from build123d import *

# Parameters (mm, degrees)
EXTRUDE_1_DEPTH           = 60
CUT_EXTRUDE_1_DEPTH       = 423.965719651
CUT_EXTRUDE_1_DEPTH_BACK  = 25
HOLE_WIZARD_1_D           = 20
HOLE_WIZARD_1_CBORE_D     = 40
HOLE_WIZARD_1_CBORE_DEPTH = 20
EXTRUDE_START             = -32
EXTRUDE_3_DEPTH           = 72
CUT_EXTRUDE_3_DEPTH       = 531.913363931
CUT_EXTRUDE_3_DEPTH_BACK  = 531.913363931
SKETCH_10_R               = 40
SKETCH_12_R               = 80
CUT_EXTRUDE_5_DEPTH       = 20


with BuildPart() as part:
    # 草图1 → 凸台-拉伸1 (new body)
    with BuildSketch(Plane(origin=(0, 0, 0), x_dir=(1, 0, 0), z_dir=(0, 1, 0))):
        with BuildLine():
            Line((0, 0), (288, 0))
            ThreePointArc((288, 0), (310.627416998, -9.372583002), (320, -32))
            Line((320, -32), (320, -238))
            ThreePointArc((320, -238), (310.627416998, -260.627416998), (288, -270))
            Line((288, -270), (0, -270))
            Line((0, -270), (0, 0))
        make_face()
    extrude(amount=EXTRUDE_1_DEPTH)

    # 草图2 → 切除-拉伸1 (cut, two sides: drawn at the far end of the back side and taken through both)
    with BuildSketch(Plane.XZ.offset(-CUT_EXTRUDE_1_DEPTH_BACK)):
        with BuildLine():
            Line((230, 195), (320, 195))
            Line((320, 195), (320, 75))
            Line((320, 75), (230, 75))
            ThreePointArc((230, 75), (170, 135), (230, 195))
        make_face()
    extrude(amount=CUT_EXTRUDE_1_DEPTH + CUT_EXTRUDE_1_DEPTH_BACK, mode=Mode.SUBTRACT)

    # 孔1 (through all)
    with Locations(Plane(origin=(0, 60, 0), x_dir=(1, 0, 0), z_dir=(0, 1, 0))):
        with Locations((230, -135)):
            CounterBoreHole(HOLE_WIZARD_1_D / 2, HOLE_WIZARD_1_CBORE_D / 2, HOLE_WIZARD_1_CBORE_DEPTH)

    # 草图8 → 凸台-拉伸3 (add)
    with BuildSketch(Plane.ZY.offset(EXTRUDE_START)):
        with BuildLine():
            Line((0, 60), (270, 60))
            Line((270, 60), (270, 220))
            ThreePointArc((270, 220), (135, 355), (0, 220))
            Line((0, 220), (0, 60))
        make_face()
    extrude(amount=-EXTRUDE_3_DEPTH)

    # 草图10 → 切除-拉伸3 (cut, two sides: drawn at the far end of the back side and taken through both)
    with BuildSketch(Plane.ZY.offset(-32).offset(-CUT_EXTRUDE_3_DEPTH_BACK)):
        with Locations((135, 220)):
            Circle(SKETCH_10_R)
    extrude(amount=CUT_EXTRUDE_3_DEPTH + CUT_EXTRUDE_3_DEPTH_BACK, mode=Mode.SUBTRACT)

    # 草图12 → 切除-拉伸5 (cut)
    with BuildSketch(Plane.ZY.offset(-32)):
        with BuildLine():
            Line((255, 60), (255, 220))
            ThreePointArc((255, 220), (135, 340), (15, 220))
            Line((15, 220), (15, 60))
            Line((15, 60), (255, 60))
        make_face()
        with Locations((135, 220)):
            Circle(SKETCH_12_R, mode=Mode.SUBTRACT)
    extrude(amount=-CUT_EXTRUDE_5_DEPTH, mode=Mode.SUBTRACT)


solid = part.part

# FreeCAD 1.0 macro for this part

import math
import FreeCAD as App
import Part
import Sketcher

V = App.Vector

doc = App.newDocument("Part")
body = doc.addObject("PartDesign::Body", "Body")

# Sketch on XZ plane
sketch1 = doc.addObject("Sketcher::SketchObject", "Sketch")
body.addObject(sketch1)
sketch1.AttachmentSupport = (doc.XZ_Plane, [""])
sketch1.MapMode = "FlatFace"
sketch1.addGeometry([
    Part.LineSegment(V(288, 0, 0), V(0, 0, 0)),  # 0
    Part.LineSegment(V(0, 0, 0), V(0, 270, 0)),  # 1
    Part.LineSegment(V(0, 270, 0), V(288, 270, 0)),  # 2
    Part.ArcOfCircle(Part.Circle(V(288, 238, 0), V(0, 0, 1), 32), math.radians(0), math.radians(90)),  # 3
    Part.LineSegment(V(320, 238, 0), V(320, 32, 0)),  # 4
    Part.ArcOfCircle(Part.Circle(V(288, 32, 0), V(0, 0, 1), 32), math.radians(-90), math.radians(0)),  # 5
], False)
sketch1.addConstraint([
    Sketcher.Constraint("Coincident", 0, 2, 1, 1),
    Sketcher.Constraint("Coincident", 1, 2, 2, 1),
    Sketcher.Constraint("Tangent", 2, 2, 3, 2),
    Sketcher.Constraint("Tangent", 3, 1, 4, 1),
    Sketcher.Constraint("Tangent", 4, 2, 5, 2),
    Sketcher.Constraint("Tangent", 5, 1, 0, 1),
    Sketcher.Constraint("Horizontal", 0),
    Sketcher.Constraint("Vertical", 1),
    Sketcher.Constraint("Horizontal", 2),
    Sketcher.Constraint("Vertical", 4),
    Sketcher.Constraint("Coincident", 0, 2, -1, 1),
    Sketcher.Constraint("Equal", 3, 5),
    Sketcher.Constraint("Radius", 3, 32.0),
    Sketcher.Constraint("DistanceX", 0, 2, 0, 1, 288.0),
    Sketcher.Constraint("DistanceY", 1, 1, 1, 2, 270.0),
])
pad1 = doc.addObject("PartDesign::Pad", "Pad")
body.addObject(pad1)
pad1.Profile = sketch1
pad1.Length = 60
pad1.Reversed = True

# Sketch on XZ plane
sketch2 = doc.addObject("Sketcher::SketchObject", "Sketch001")
body.addObject(sketch2)
sketch2.AttachmentSupport = (doc.XZ_Plane, [""])
sketch2.MapMode = "FlatFace"
sketch2.addGeometry([
    Part.LineSegment(V(320, 195, 0), V(230, 195, 0)),
    Part.ArcOfCircle(Part.Circle(V(230, 135, 0), V(0, 0, 1), 60), math.radians(90), math.radians(270)),
    Part.LineSegment(V(230, 75, 0), V(320, 75, 0)),
    Part.LineSegment(V(320, 75, 0), V(320, 195, 0)),
], False)
sketch2.addConstraint([
    Sketcher.Constraint("Tangent", 0, 2, 1, 1),
    Sketcher.Constraint("Tangent", 1, 2, 2, 1),
    Sketcher.Constraint("Coincident", 2, 2, 3, 1),
    Sketcher.Constraint("Coincident", 3, 2, 0, 1),
    Sketcher.Constraint("Horizontal", 0),
    Sketcher.Constraint("Horizontal", 2),
    Sketcher.Constraint("Vertical", 3),
    Sketcher.Constraint("Radius", 1, 60.0),
    Sketcher.Constraint("DistanceX", 0, 2, 0, 1, 90.0),
    Sketcher.Constraint("DistanceX", -1, 1, 1, 3, 230.0),
    Sketcher.Constraint("DistanceY", -1, 1, 1, 3, 135.0),
])
pocket1 = doc.addObject("PartDesign::Pocket", "Pocket")
body.addObject(pocket1)
pocket1.Profile = sketch2
pocket1.Type = "TwoLengths"
pocket1.Length = 423.96572
pocket1.Length2 = 25
pocket1.Reversed = True

# Sketch on XZ plane
sketch3 = doc.addObject("Sketcher::SketchObject", "Sketch002")
body.addObject(sketch3)
sketch3.AttachmentSupport = (doc.XZ_Plane, [""])
sketch3.MapMode = "FlatFace"
sketch3.AttachmentOffset = App.Placement(V(0, 0, -60), App.Rotation())
sketch3.addGeometry(Part.Circle(V(230, 135, 0), V(0, 0, 1), 10), False)
sketch3.addConstraint([
    Sketcher.Constraint("Diameter", 0, 20.0),
    Sketcher.Constraint("DistanceX", -1, 1, 0, 3, 230.0),
    Sketcher.Constraint("DistanceY", -1, 1, 0, 3, 135.0),
])
doc.recompute()
hole = doc.addObject("PartDesign::Hole", "Hole")
body.addObject(hole)
hole.Profile = sketch3
hole.ThreadType = "None"
hole.Diameter = 20
hole.DepthType = "ThroughAll"
hole.HoleCutType = "Counterbore"
hole.HoleCutDiameter = 40
hole.HoleCutDepth = 20
hole.Reversed = True

# Sketch on YZ plane
sketch4 = doc.addObject("Sketcher::SketchObject", "Sketch003")
body.addObject(sketch4)
sketch4.AttachmentSupport = (doc.YZ_Plane, [""])
sketch4.MapMode = "FlatFace"
sketch4.AttachmentOffset = App.Placement(V(0, 0, 32), App.Rotation())
sketch4.addGeometry([
    Part.LineSegment(V(60, 0, 0), V(60, 270, 0)),
    Part.LineSegment(V(60, 270, 0), V(220, 270, 0)),
    Part.ArcOfCircle(Part.Circle(V(220, 135, 0), V(0, 0, 1), 135), math.radians(-90), math.radians(90)),
    Part.LineSegment(V(220, 0, 0), V(60, 0, 0)),
], False)
sketch4.addConstraint([
    Sketcher.Constraint("Coincident", 0, 2, 1, 1),
    Sketcher.Constraint("Tangent", 1, 2, 2, 2),
    Sketcher.Constraint("Tangent", 2, 1, 3, 1),
    Sketcher.Constraint("Coincident", 3, 2, 0, 1),
    Sketcher.Constraint("Vertical", 0),
    Sketcher.Constraint("Horizontal", 1),
    Sketcher.Constraint("Horizontal", 3),
    Sketcher.Constraint("PointOnObject", 2, 1, -1),
    Sketcher.Constraint("Radius", 2, 135.0),
    Sketcher.Constraint("DistanceX", 1, 1, 1, 2, 160.0),
    Sketcher.Constraint("DistanceX", -1, 1, 2, 3, 220.0),
])
pad2 = doc.addObject("PartDesign::Pad", "Pad001")
body.addObject(pad2)
pad2.Profile = sketch4
pad2.Length = 72

# Sketch on YZ plane
sketch5 = doc.addObject("Sketcher::SketchObject", "Sketch004")
body.addObject(sketch5)
sketch5.AttachmentSupport = (doc.YZ_Plane, [""])
sketch5.MapMode = "FlatFace"
sketch5.AttachmentOffset = App.Placement(V(0, 0, 32), App.Rotation())
sketch5.addGeometry(Part.Circle(V(220, 135, 0), V(0, 0, 1), 40), False)
sketch5.addConstraint([
    Sketcher.Constraint("Diameter", 0, 80.0),
    Sketcher.Constraint("DistanceX", -1, 1, 0, 3, 220.0),
    Sketcher.Constraint("DistanceY", -1, 1, 0, 3, 135.0),
])
pocket2 = doc.addObject("PartDesign::Pocket", "Pocket001")
body.addObject(pocket2)
pocket2.Profile = sketch5
pocket2.Type = "ThroughAll"
pocket2.Midplane = True

# Sketch on YZ plane
sketch6 = doc.addObject("Sketcher::SketchObject", "Sketch005")
body.addObject(sketch6)
sketch6.AttachmentSupport = (doc.YZ_Plane, [""])
sketch6.MapMode = "FlatFace"
sketch6.AttachmentOffset = App.Placement(V(0, 0, 32), App.Rotation())
sketch6.addGeometry([
    Part.LineSegment(V(60, 255, 0), V(220, 255, 0)),  # 0
    Part.ArcOfCircle(Part.Circle(V(220, 135, 0), V(0, 0, 1), 120), math.radians(-90), math.radians(90)),  # 1
    Part.LineSegment(V(220, 15, 0), V(60, 15, 0)),  # 2
    Part.LineSegment(V(60, 15, 0), V(60, 255, 0)),  # 3
    Part.Circle(V(220, 135, 0), V(0, 0, 1), 80),  # 4
], False)
sketch6.addConstraint([
    Sketcher.Constraint("Tangent", 0, 2, 1, 2),
    Sketcher.Constraint("Tangent", 1, 1, 2, 1),
    Sketcher.Constraint("Coincident", 2, 2, 3, 1),
    Sketcher.Constraint("Coincident", 3, 2, 0, 1),
    Sketcher.Constraint("Horizontal", 0),
    Sketcher.Constraint("Horizontal", 2),
    Sketcher.Constraint("Vertical", 3),
    Sketcher.Constraint("Coincident", 4, 3, 1, 3),
    Sketcher.Constraint("Diameter", 4, 160.0),
    Sketcher.Constraint("Radius", 1, 120.0),
    Sketcher.Constraint("DistanceX", 0, 1, 0, 2, 160.0),
    Sketcher.Constraint("DistanceX", -1, 1, 1, 3, 220.0),
    Sketcher.Constraint("DistanceY", -1, 1, 1, 3, 135.0),
])
pocket3 = doc.addObject("PartDesign::Pocket", "Pocket002")
body.addObject(pocket3)
pocket3.Profile = sketch6
pocket3.Length = 20
pocket3.Reversed = True

doc.recompute()
